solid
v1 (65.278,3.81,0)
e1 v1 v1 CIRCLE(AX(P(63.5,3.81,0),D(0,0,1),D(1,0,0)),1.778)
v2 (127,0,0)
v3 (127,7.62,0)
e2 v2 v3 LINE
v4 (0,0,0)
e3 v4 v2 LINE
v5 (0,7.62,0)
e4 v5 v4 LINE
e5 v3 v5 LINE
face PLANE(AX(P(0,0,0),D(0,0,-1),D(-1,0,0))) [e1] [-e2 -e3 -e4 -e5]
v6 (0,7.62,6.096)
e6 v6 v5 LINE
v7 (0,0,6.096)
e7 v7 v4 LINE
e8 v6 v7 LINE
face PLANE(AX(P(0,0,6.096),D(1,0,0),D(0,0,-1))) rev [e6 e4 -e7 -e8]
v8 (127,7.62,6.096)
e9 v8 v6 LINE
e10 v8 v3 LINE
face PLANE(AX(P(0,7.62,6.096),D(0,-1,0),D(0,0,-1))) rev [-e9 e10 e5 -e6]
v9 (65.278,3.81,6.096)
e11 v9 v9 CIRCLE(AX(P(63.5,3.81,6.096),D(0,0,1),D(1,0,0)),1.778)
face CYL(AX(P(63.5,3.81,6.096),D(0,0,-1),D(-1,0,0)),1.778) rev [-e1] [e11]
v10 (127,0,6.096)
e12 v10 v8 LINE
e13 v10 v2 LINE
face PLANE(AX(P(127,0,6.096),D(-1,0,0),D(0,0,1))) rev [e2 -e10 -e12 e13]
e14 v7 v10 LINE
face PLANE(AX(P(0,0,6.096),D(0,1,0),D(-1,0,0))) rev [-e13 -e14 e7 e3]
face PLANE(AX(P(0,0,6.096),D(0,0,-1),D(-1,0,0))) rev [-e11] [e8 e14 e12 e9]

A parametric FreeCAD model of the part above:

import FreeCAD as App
import Part
import Sketcher

V = App.Vector
Q = App.Units.Quantity


def add_polygon(sketch, points):
    """Adds a closed chain of lines whose ends are joined by coincident constraints."""
    first, n = sketch.GeometryCount, len(points)
    for a, b in zip(points, points[1:] + points[:1]):
        sketch.addGeometry(Part.LineSegment(App.Vector(*a, 0), App.Vector(*b, 0)), False)
    for i in range(n):
        sketch.addConstraint(Sketcher.Constraint("Coincident", first + i, 2, first + (i + 1) % n, 1))

doc = App.newDocument("Part")
body = doc.addObject("PartDesign::Body", "Body")

# Sketch on XY plane
sketch1 = doc.addObject("Sketcher::SketchObject", "Sketch")
body.addObject(sketch1)
sketch1.AttachmentSupport = (doc.XY_Plane, [""])
sketch1.MapMode = "FlatFace"
add_polygon(sketch1, [(0, 7.6), (0, 0), (127, 0), (127, 7.6)])  # lines 0-3
sketch1.addGeometry(Part.Circle(V(63.5, 3.8, 0), V(0, 0, 1), 1.8), False)  # 4
sketch1.addConstraint([
    Sketcher.Constraint("Vertical", 0),
    Sketcher.Constraint("Horizontal", 1),
    Sketcher.Constraint("Vertical", 2),
    Sketcher.Constraint("Horizontal", 3),
    Sketcher.Constraint("Coincident", 0, 2, -1, 1),
    Sketcher.Constraint("Diameter", 4, Q("0.14 in")),
    Sketcher.Constraint("DistanceX", 1, 1, 1, 2, Q("5 in")),
    Sketcher.Constraint("DistanceY", 0, 2, 0, 1, Q("0.3 in")),
    Sketcher.Constraint("DistanceX", -1, 1, 4, 3, Q("2.5 in")),
    Sketcher.Constraint("DistanceY", -1, 1, 4, 3, Q("0.15 in")),
])
pad1 = doc.addObject("PartDesign::Pad", "Pad")
body.addObject(pad1)
pad1.Profile = sketch1
pad1.Length = Q("0.24 in")

doc.recompute()
